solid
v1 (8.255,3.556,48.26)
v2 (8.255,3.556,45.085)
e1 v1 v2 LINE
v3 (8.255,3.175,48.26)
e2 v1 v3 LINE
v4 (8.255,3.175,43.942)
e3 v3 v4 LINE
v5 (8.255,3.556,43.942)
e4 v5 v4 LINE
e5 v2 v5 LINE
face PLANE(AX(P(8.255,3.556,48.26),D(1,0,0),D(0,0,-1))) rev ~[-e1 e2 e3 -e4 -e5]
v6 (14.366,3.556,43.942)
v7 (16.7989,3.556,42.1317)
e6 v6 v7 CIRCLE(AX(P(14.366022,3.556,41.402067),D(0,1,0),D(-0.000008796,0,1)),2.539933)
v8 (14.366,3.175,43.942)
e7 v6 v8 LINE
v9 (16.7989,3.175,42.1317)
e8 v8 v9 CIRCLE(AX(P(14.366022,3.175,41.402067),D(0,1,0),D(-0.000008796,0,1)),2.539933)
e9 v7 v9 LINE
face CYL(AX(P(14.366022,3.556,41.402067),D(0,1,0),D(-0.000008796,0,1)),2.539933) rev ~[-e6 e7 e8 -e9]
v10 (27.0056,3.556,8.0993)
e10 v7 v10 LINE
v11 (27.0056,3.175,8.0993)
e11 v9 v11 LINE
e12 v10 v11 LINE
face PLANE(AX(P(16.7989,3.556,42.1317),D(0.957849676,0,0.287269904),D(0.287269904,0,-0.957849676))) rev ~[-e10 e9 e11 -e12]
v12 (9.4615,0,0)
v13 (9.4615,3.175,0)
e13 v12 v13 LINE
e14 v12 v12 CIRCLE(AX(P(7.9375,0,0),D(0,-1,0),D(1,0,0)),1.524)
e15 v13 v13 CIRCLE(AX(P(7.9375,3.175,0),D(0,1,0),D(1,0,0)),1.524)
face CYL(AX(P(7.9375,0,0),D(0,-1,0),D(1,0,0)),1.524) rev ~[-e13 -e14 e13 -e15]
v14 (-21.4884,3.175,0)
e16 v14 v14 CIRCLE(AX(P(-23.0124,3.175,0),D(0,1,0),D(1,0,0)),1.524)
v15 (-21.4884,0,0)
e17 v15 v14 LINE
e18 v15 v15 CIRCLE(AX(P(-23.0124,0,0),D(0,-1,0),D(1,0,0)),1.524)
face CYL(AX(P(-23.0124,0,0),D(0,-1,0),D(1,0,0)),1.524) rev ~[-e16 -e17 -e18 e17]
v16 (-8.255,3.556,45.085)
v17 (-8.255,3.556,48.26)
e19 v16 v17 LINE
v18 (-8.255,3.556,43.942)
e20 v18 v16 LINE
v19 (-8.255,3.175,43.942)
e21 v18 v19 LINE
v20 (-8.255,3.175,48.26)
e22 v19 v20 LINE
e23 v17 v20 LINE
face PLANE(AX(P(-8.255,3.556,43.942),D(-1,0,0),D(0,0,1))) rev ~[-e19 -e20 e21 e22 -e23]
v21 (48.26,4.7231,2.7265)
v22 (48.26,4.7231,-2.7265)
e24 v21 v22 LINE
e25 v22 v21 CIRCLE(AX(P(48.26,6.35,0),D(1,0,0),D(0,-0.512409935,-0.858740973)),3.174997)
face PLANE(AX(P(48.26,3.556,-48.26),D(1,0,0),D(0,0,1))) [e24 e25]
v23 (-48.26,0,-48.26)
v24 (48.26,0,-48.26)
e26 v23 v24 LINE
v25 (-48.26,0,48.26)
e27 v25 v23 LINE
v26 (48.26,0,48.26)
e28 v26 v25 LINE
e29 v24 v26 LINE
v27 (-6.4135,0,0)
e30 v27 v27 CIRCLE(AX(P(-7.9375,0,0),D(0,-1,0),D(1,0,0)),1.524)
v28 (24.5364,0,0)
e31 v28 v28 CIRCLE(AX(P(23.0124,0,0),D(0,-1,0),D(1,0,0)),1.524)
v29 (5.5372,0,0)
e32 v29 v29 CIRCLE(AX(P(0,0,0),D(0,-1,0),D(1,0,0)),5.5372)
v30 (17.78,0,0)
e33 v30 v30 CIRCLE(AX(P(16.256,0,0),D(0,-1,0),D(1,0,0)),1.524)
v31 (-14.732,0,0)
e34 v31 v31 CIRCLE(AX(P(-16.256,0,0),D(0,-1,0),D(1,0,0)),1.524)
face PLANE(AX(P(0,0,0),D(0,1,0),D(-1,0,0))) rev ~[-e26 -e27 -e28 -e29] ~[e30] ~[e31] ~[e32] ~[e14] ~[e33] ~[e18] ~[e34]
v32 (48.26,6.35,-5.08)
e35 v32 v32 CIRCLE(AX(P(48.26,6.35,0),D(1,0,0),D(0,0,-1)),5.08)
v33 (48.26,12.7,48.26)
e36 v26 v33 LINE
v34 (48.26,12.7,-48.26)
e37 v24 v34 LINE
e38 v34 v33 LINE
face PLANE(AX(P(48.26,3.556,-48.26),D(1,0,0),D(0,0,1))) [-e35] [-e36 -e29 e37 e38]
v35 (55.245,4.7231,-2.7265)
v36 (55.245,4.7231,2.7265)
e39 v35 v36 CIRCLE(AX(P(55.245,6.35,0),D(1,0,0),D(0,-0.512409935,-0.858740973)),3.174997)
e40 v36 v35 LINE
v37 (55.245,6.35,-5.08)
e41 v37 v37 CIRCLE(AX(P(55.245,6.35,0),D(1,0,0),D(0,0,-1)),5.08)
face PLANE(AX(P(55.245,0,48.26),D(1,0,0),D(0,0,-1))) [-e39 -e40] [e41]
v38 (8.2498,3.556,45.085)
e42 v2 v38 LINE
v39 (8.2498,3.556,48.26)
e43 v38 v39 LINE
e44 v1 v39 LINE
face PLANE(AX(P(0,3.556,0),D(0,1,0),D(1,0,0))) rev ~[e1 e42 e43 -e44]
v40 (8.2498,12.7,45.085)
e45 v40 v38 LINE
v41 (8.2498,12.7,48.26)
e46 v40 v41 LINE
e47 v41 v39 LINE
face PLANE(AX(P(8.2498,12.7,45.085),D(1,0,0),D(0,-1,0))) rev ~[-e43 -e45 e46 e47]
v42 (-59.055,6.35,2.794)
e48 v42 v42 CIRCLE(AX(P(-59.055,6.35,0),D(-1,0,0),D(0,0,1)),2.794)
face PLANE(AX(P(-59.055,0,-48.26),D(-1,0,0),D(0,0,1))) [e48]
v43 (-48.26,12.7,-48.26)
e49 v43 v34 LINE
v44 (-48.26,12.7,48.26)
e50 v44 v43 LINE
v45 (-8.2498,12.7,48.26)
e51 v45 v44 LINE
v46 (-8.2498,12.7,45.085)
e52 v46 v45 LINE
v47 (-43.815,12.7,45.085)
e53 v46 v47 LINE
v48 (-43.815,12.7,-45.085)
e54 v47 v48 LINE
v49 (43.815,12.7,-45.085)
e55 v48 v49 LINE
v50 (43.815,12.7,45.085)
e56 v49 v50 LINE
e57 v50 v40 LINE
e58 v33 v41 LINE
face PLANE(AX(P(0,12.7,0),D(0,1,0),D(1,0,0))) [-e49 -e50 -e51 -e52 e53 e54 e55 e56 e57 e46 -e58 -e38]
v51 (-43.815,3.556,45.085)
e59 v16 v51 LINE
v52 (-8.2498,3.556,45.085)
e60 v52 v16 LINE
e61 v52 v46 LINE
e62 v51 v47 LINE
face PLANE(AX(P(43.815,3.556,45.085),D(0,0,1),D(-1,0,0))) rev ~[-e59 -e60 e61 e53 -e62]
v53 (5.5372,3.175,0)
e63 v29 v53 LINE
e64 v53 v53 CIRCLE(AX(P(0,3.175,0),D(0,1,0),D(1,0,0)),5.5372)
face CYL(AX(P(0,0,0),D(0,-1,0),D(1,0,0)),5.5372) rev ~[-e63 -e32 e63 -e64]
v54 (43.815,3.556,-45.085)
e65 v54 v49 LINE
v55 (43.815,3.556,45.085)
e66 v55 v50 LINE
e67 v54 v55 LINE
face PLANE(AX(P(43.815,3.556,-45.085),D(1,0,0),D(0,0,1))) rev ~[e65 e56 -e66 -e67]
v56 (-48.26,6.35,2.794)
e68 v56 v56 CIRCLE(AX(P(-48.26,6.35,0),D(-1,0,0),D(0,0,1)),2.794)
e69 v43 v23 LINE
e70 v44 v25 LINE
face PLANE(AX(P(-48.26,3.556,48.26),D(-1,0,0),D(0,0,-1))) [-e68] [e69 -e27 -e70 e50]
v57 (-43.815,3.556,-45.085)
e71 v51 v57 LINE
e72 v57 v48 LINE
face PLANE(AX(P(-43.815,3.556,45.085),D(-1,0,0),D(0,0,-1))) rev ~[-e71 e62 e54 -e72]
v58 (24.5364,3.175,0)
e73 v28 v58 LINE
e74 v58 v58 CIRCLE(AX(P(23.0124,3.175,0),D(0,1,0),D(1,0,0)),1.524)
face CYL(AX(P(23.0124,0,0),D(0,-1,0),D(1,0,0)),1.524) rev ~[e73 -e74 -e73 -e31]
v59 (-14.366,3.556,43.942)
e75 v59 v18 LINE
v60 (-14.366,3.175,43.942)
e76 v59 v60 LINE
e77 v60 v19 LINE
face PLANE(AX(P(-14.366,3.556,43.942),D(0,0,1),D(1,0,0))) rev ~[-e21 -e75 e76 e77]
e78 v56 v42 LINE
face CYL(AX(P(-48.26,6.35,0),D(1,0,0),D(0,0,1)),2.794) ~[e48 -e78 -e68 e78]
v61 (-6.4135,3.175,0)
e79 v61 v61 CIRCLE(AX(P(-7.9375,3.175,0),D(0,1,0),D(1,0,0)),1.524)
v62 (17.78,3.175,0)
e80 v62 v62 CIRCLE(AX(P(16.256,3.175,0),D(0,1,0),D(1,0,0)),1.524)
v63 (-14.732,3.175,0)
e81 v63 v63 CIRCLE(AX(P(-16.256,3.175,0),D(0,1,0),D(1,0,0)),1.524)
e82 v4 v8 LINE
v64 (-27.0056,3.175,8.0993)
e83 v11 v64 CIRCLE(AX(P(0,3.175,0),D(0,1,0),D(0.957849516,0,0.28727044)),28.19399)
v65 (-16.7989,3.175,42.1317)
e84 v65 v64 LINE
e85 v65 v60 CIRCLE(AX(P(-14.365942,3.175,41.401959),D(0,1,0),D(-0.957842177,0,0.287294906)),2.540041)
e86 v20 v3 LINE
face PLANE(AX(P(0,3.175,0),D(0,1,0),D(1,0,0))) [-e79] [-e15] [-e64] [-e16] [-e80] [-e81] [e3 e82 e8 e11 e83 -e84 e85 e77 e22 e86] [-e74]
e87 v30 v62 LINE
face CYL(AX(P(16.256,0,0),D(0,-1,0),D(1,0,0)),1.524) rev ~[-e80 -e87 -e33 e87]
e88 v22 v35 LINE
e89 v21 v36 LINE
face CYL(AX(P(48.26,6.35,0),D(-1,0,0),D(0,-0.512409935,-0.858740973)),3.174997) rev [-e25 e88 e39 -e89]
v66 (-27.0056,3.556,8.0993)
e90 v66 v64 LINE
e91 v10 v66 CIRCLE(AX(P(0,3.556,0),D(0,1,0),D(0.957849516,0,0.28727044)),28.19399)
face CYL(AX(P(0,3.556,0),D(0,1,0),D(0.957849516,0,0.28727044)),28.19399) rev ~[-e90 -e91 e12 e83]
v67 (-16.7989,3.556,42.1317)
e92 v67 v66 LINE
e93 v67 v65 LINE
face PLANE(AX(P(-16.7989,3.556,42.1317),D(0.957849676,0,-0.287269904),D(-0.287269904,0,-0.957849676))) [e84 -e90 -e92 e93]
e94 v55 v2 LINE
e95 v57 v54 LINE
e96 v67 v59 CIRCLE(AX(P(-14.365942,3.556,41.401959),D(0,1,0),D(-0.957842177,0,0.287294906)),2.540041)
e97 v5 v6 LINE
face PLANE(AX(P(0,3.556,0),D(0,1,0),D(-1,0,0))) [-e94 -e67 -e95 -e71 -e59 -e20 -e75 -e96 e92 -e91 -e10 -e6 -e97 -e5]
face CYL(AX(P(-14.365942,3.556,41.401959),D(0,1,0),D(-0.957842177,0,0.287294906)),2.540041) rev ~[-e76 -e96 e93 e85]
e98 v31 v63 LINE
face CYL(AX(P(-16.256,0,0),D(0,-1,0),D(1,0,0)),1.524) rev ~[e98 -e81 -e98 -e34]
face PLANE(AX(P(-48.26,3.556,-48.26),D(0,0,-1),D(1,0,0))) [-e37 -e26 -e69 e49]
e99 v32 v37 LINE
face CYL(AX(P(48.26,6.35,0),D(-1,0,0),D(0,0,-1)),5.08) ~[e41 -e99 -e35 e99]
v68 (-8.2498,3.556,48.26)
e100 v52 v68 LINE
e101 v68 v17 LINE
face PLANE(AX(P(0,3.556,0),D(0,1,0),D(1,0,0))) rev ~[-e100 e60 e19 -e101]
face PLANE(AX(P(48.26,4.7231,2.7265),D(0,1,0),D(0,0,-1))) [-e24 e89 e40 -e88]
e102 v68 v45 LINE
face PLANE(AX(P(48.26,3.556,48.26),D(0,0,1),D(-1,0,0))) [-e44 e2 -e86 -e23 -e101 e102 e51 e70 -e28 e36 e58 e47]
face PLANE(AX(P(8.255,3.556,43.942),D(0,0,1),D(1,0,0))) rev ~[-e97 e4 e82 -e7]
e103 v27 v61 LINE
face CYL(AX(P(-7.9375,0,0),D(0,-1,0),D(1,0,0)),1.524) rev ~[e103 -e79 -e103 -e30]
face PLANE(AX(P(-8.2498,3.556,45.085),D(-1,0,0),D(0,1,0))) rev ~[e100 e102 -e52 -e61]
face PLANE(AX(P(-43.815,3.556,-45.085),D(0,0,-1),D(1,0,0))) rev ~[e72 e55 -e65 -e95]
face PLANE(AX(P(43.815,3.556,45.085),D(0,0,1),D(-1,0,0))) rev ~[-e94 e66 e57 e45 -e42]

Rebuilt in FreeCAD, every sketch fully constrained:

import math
import FreeCAD as App
import Part
import Sketcher
from FreeCAD import Vector
Q = App.Units.Quantity


def add_polygon(sketch, points):
    """Adds a closed chain of lines whose ends are joined by coincident constraints."""
    first, n = sketch.GeometryCount, len(points)
    for a, b in zip(points, points[1:] + points[:1]):
        sketch.addGeometry(Part.LineSegment(App.Vector(*a, 0), App.Vector(*b, 0)), False)
    for i in range(n):
        sketch.addConstraint(Sketcher.Constraint("Coincident", first + i, 2, first + (i + 1) % n, 1))

doc = App.newDocument("Part")
params = doc.addObject("Spreadsheet::Sheet", "Params")
for row, (alias, value) in enumerate([
    ("sketch1_width", "3.8 in"),
    ("pad1_length", "0.14 in"),
    ("sketch2_radius", "0.1 in"),
    ("sketch2_diameter", "0.12 in"),
    ("sketch2_radius2", "1.11 in"),
    ("sketch2_diameter2", "0.436 in"),
    ("sketch2_width", "0.65 in"),
    ("pocket1_length", "0.015 in"),
    ("sketch3_diameter", "0.12 in"),
    ("sketch3_diameter2", "0.436 in"),
    ("pocket2_length", "0.14 in"),
    ("sketch4_width", "3.45 in"),
    ("sketch4_height", "3.55 in"),
    ("sketch4_width2", "3.8 in"),
    ("pad2_length", "0.36 in"),
    ("sketch5_height", "0.36 in"),
    ("sketch6_diameter", "0.22 in"),
    ("pad3_length", "0.425 in"),
    ("sketch7_diameter", "0.4 in"),
    ("sketch7_radius", "0.125 in"),
    ("pad4_length", "0.275 in"),
], start=1):
    params.set(f"A{row}", alias)
    params.set(f"B{row}", "=" + value)
    params.setAlias(f"B{row}", alias)

body = doc.addObject("PartDesign::Body", "Body")

sketch1 = doc.addObject("Sketcher::SketchObject", "Sketch")
body.addObject(sketch1)
sketch1.AttachmentSupport = (doc.XZ_Plane, [""])
sketch1.MapMode = "FlatFace"
add_polygon(sketch1, [(-48.26, 48.26), (48.26, 48.26), (48.26, -48.26), (-48.26, -48.26)])
sketch1.addConstraint(Sketcher.Constraint("Horizontal", 0))
sketch1.addConstraint(Sketcher.Constraint("Vertical", 1))
sketch1.addConstraint(Sketcher.Constraint("Horizontal", 2))
sketch1.addConstraint(Sketcher.Constraint("Vertical", 3))
sketch1.addConstraint(Sketcher.Constraint("Symmetric", 0, 2, 2, 2, -1, 1))
sketch1.addConstraint(Sketcher.Constraint("Equal", 2, 1))
sketch1.addConstraint(Sketcher.Constraint("DistanceX", 0, 1, 0, 2, Q("3.8 in")))
sketch1.setExpression("Constraints[10]", "Params.sketch1_width")
pad1 = doc.addObject("PartDesign::Pad", "Pad")
body.addObject(pad1)
pad1.Profile = sketch1
pad1.setExpression("Length", "Params.pad1_length")
pad1.Reversed = True

sketch2 = doc.addObject("Sketcher::SketchObject", "Sketch001")
body.addObject(sketch2)
sketch2.AttachmentSupport = (doc.XZ_Plane, [""])
sketch2.MapMode = "FlatFace"
sketch2.AttachmentOffset = App.Placement(Vector(0, 0, -0.14 * 25.4), App.Rotation())
sketch2.addGeometry(Part.LineSegment(Vector(16.7989, 42.1317, 0), Vector(27.0056, 8.0993, 0)), False)
sketch2.addGeometry(Part.ArcOfCircle(Part.Circle(Vector(0, 0, 0), Vector(0, 0, 1), 28.19399), math.radians(163.305388), math.radians(376.694612)), False)
sketch2.addGeometry(Part.LineSegment(Vector(-27.0056, 8.0993, 0), Vector(-16.7989, 42.1317, 0)), False)
sketch2.addGeometry(Part.ArcOfCircle(Part.Circle(Vector(-14.366, 41.402, 0), Vector(0, 0, 1), 2.539973), math.radians(90), math.radians(163.304429)), False)
sketch2.addGeometry(Part.LineSegment(Vector(-14.366, 43.942, 0), Vector(-8.255, 43.942, 0)), False)
sketch2.addGeometry(Part.LineSegment(Vector(-8.255, 43.942, 0), Vector(-8.255, 48.26, 0)), False)
sketch2.addGeometry(Part.LineSegment(Vector(-8.255, 48.26, 0), Vector(8.255, 48.26, 0)), False)
sketch2.addGeometry(Part.LineSegment(Vector(8.255, 48.26, 0), Vector(8.255, 43.942, 0)), False)
sketch2.addGeometry(Part.LineSegment(Vector(8.255, 43.942, 0), Vector(14.366, 43.942, 0)), False)
sketch2.addGeometry(Part.ArcOfCircle(Part.Circle(Vector(14.366, 41.402, 0), Vector(0, 0, 1), 2.54), math.radians(16.695571), math.radians(90)), False)
sketch2.addGeometry(Part.Circle(Vector(-23.0124, 0, 0), Vector(0, 0, 1), 1.524), False)
sketch2.addGeometry(Part.Circle(Vector(-16.256, 0, 0), Vector(0, 0, 1), 1.524), False)
sketch2.addGeometry(Part.Circle(Vector(-7.9375, 0, 0), Vector(0, 0, 1), 1.524), False)
sketch2.addGeometry(Part.Circle(Vector(0, 0, 0), Vector(0, 0, 1), 5.5372), False)
sketch2.addGeometry(Part.Circle(Vector(7.9375, 0, 0), Vector(0, 0, 1), 1.524), False)
sketch2.addGeometry(Part.Circle(Vector(16.256, 0, 0), Vector(0, 0, 1), 1.524), False)
sketch2.addGeometry(Part.Circle(Vector(23.0124, 0, 0), Vector(0, 0, 1), 1.524), False)
sketch2.addConstraint(Sketcher.Constraint("Tangent", 0, 2, 1, 2))
sketch2.addConstraint(Sketcher.Constraint("Tangent", 1, 1, 2, 1))
sketch2.addConstraint(Sketcher.Constraint("Tangent", 2, 2, 3, 2))
sketch2.addConstraint(Sketcher.Constraint("Tangent", 3, 1, 4, 1))
sketch2.addConstraint(Sketcher.Constraint("Coincident", 4, 2, 5, 1))
sketch2.addConstraint(Sketcher.Constraint("Coincident", 5, 2, 6, 1))
sketch2.addConstraint(Sketcher.Constraint("Coincident", 6, 2, 7, 1))
sketch2.addConstraint(Sketcher.Constraint("Coincident", 7, 2, 8, 1))
sketch2.addConstraint(Sketcher.Constraint("Tangent", 8, 2, 9, 2))
sketch2.addConstraint(Sketcher.Constraint("Tangent", 9, 1, 0, 1))
sketch2.addConstraint(Sketcher.Constraint("Horizontal", 4))
sketch2.addConstraint(Sketcher.Constraint("Vertical", 5))
sketch2.addConstraint(Sketcher.Constraint("Horizontal", 6))
sketch2.addConstraint(Sketcher.Constraint("Vertical", 7))
sketch2.addConstraint(Sketcher.Constraint("Horizontal", 8))
sketch2.addConstraint(Sketcher.Constraint("Coincident", 1, 3, -1, 1))
sketch2.addConstraint(Sketcher.Constraint("Coincident", 13, 3, -1, 1))
sketch2.addConstraint(Sketcher.Constraint("Equal", 3, 9))
sketch2.addConstraint(Sketcher.Constraint("Equal", 10, 11))
sketch2.addConstraint(Sketcher.Constraint("Equal", 11, 12))
sketch2.addConstraint(Sketcher.Constraint("Equal", 12, 14))
sketch2.addConstraint(Sketcher.Constraint("Equal", 14, 15))
sketch2.addConstraint(Sketcher.Constraint("Equal", 15, 16))
sketch2.addConstraint(Sketcher.Constraint("Symmetric", 12, 3, 14, 3, -1, 1))
sketch2.addConstraint(Sketcher.Constraint("Symmetric", 11, 3, 15, 3, -1, 1))
sketch2.addConstraint(Sketcher.Constraint("Symmetric", 10, 3, 16, 3, -1, 1))
sketch2.addConstraint(Sketcher.Constraint("Symmetric", 3, 3, 9, 3, -2))
sketch2.addConstraint(Sketcher.Constraint("PointOnObject", 10, 3, -1))
sketch2.addConstraint(Sketcher.Constraint("PointOnObject", 11, 3, -1))
sketch2.addConstraint(Sketcher.Constraint("PointOnObject", 12, 3, -1))
sketch2.addConstraint(Sketcher.Constraint("Equal", 4, 8))
sketch2.addConstraint(Sketcher.Constraint("Radius", 3, Q("0.1 in")))
sketch2.addConstraint(Sketcher.Constraint("Diameter", 10, Q("0.12 in")))
sketch2.addConstraint(Sketcher.Constraint("Radius", 1, Q("1.11 in")))
sketch2.addConstraint(Sketcher.Constraint("Diameter", 13, Q("0.436 in")))
sketch2.addConstraint(Sketcher.Constraint("DistanceX", 6, 1, 6, 2, Q("0.65 in")))
sketch2.addConstraint(Sketcher.Constraint("DistanceX", 11, 3, -1, 1, Q("0.64 in")))
sketch2.addConstraint(Sketcher.Constraint("DistanceY", -1, 1, 3, 1, Q("1.73 in")))
sketch2.addConstraint(Sketcher.Constraint("DistanceX", 10, 3, -1, 1, Q("0.906 in")))
sketch2.addConstraint(Sketcher.Constraint("DistanceX", 12, 3, -1, 1, Q("0.3125 in")))
sketch2.addConstraint(Sketcher.Constraint("DistanceY", 5, 1, 5, 2, Q("0.17 in")))
sketch2.addConstraint(Sketcher.Constraint("DistanceX", 4, 1, 4, 2, Q("0.2406 in")))
sketch2.setExpression("Constraints[31]", "Params.sketch2_radius")
sketch2.setExpression("Constraints[32]", "Params.sketch2_diameter")
sketch2.setExpression("Constraints[33]", "Params.sketch2_radius2")
sketch2.setExpression("Constraints[34]", "Params.sketch2_diameter2")
sketch2.setExpression("Constraints[35]", "Params.sketch2_width")
pocket1 = doc.addObject("PartDesign::Pocket", "Pocket")
body.addObject(pocket1)
pocket1.Profile = sketch2
pocket1.setExpression("Length", "Params.pocket1_length")
pocket1.Reversed = True

sketch3 = doc.addObject("Sketcher::SketchObject", "Sketch002")
body.addObject(sketch3)
sketch3.AttachmentSupport = (doc.XZ_Plane, [""])
sketch3.MapMode = "FlatFace"
sketch3.addGeometry(Part.Circle(Vector(0, 0, 0), Vector(0, 0, 1), 5.5372), False)
sketch3.addGeometry(Part.Circle(Vector(7.9375, 0, 0), Vector(0, 0, 1), 1.524), False)
sketch3.addGeometry(Part.Circle(Vector(-7.9375, 0, 0), Vector(0, 0, 1), 1.524), False)
sketch3.addGeometry(Part.Circle(Vector(16.256, 0, 0), Vector(0, 0, 1), 1.524), False)
sketch3.addGeometry(Part.Circle(Vector(-16.256, 0, 0), Vector(0, 0, 1), 1.524), False)
sketch3.addGeometry(Part.Circle(Vector(23.0124, 0, 0), Vector(0, 0, 1), 1.524), False)
sketch3.addGeometry(Part.Circle(Vector(-23.0124, 0, 0), Vector(0, 0, 1), 1.524), False)
sketch3.addConstraint(Sketcher.Constraint("Coincident", 0, 3, -1, 1))
sketch3.addConstraint(Sketcher.Constraint("Equal", 1, 2))
sketch3.addConstraint(Sketcher.Constraint("Equal", 2, 3))
sketch3.addConstraint(Sketcher.Constraint("Equal", 3, 4))
sketch3.addConstraint(Sketcher.Constraint("Equal", 4, 5))
sketch3.addConstraint(Sketcher.Constraint("Equal", 5, 6))
sketch3.addConstraint(Sketcher.Constraint("Symmetric", 1, 3, 2, 3, -1, 1))
sketch3.addConstraint(Sketcher.Constraint("Symmetric", 3, 3, 4, 3, -1, 1))
sketch3.addConstraint(Sketcher.Constraint("Symmetric", 5, 3, 6, 3, -1, 1))
sketch3.addConstraint(Sketcher.Constraint("PointOnObject", 1, 3, -1))
sketch3.addConstraint(Sketcher.Constraint("PointOnObject", 3, 3, -1))
sketch3.addConstraint(Sketcher.Constraint("PointOnObject", 5, 3, -1))
sketch3.addConstraint(Sketcher.Constraint("Diameter", 1, Q("0.12 in")))
sketch3.addConstraint(Sketcher.Constraint("Diameter", 0, Q("0.436 in")))
sketch3.addConstraint(Sketcher.Constraint("DistanceX", -1, 1, 3, 3, Q("0.64 in")))
sketch3.addConstraint(Sketcher.Constraint("DistanceX", -1, 1, 1, 3, Q("0.3125 in")))
sketch3.addConstraint(Sketcher.Constraint("DistanceX", -1, 1, 5, 3, Q("0.906 in")))
sketch3.setExpression("Constraints[12]", "Params.sketch3_diameter")
sketch3.setExpression("Constraints[13]", "Params.sketch3_diameter2")
pocket2 = doc.addObject("PartDesign::Pocket", "Pocket001")
body.addObject(pocket2)
pocket2.Profile = sketch3
pocket2.setExpression("Length", "Params.pocket2_length")

sketch4 = doc.addObject("Sketcher::SketchObject", "Sketch003")
body.addObject(sketch4)
sketch4.AttachmentSupport = (doc.XZ_Plane, [""])
sketch4.MapMode = "FlatFace"
sketch4.AttachmentOffset = App.Placement(Vector(0, 0, -0.14 * 25.4), App.Rotation())
add_polygon(sketch4, [(-48.26, 48.26), (48.26, 48.26), (48.26, -48.26), (-48.26, -48.26)])
add_polygon(sketch4, [(43.815, -45.085), (43.815, 45.085), (-43.815, 45.085), (-43.815, -45.085)])
sketch4.addConstraint(Sketcher.Constraint("Horizontal", 0))
sketch4.addConstraint(Sketcher.Constraint("Vertical", 1))
sketch4.addConstraint(Sketcher.Constraint("Horizontal", 2))
sketch4.addConstraint(Sketcher.Constraint("Vertical", 3))
sketch4.addConstraint(Sketcher.Constraint("Vertical", 4))
sketch4.addConstraint(Sketcher.Constraint("Horizontal", 5))
sketch4.addConstraint(Sketcher.Constraint("Vertical", 6))
sketch4.addConstraint(Sketcher.Constraint("Horizontal", 7))
sketch4.addConstraint(Sketcher.Constraint("Symmetric", 0, 2, 2, 2, -1, 1))
sketch4.addConstraint(Sketcher.Constraint("Symmetric", 4, 2, 6, 2, -1, 1))
sketch4.addConstraint(Sketcher.Constraint("Equal", 2, 1))
sketch4.addConstraint(Sketcher.Constraint("DistanceX", 5, 2, 5, 1, Q("3.45 in")))
sketch4.addConstraint(Sketcher.Constraint("DistanceY", 4, 1, 4, 2, Q("3.55 in")))
sketch4.addConstraint(Sketcher.Constraint("DistanceX", 0, 1, 0, 2, Q("3.8 in")))
sketch4.setExpression("Constraints[19]", "Params.sketch4_width")
sketch4.setExpression("Constraints[20]", "Params.sketch4_height")
sketch4.setExpression("Constraints[21]", "Params.sketch4_width2")
pad2 = doc.addObject("PartDesign::Pad", "Pad001")
body.addObject(pad2)
pad2.Profile = sketch4
pad2.setExpression("Length", "Params.pad2_length")
pad2.Reversed = True

sketch5 = doc.addObject("Sketcher::SketchObject", "Sketch004")
body.addObject(sketch5)
sketch5.AttachmentSupport = (doc.XY_Plane, [""])
sketch5.MapMode = "FlatFace"
sketch5.AttachmentOffset = App.Placement(Vector(0, 0, 1.775 * 25.4), App.Rotation())
add_polygon(sketch5, [(-8.2498, 12.7), (8.2498, 12.7), (8.2498, 3.556), (-8.2498, 3.556)])
sketch5.addConstraint(Sketcher.Constraint("Horizontal", 0))
sketch5.addConstraint(Sketcher.Constraint("Vertical", 1))
sketch5.addConstraint(Sketcher.Constraint("Horizontal", 2))
sketch5.addConstraint(Sketcher.Constraint("Vertical", 3))
sketch5.addConstraint(Sketcher.Constraint("DistanceY", 1, 2, 1, 1, Q("0.36 in")))
sketch5.addConstraint(Sketcher.Constraint("DistanceY", -1, 1, 0, 2, Q("0.5 in")))
sketch5.addConstraint(Sketcher.Constraint("DistanceX", 0, 1, 0, 2, Q("0.6496 in")))
sketch5.addConstraint(Sketcher.Constraint("DistanceX", -1, 1, 0, 2, Q("0.3248 in")))
sketch5.setExpression("Constraints[8]", "Params.sketch5_height")
pocket3 = doc.addObject("PartDesign::Pocket", "Pocket002")
body.addObject(pocket3)
pocket3.Profile = sketch5
pocket3.Type = "UpToFirst"
pocket3.Reversed = True

sketch6 = doc.addObject("Sketcher::SketchObject", "Sketch005")
body.addObject(sketch6)
sketch6.AttachmentSupport = (doc.YZ_Plane, [""])
sketch6.MapMode = "FlatFace"
sketch6.AttachmentOffset = App.Placement(Vector(0, 0, -1.9 * 25.4), App.Rotation())
sketch6.addGeometry(Part.Circle(Vector(6.35, 0, 0), Vector(0, 0, 1), 2.794), False)
sketch6.addConstraint(Sketcher.Constraint("PointOnObject", 0, 3, -1))
sketch6.addConstraint(Sketcher.Constraint("Diameter", 0, Q("0.22 in")))
sketch6.addConstraint(Sketcher.Constraint("DistanceX", -1, 1, 0, 3, Q("0.25 in")))
sketch6.setExpression("Constraints[1]", "Params.sketch6_diameter")
pad3 = doc.addObject("PartDesign::Pad", "Pad002")
body.addObject(pad3)
pad3.Profile = sketch6
pad3.setExpression("Length", "Params.pad3_length")
pad3.Reversed = True

sketch7 = doc.addObject("Sketcher::SketchObject", "Sketch006")
body.addObject(sketch7)
sketch7.AttachmentSupport = (doc.YZ_Plane, [""])
sketch7.MapMode = "FlatFace"
sketch7.AttachmentOffset = App.Placement(Vector(0, 0, 1.9 * 25.4), App.Rotation())
sketch7.addGeometry(Part.Circle(Vector(6.35, 0, 0), Vector(0, 0, 1), 5.08), False)
sketch7.addGeometry(Part.ArcOfCircle(Part.Circle(Vector(6.35, 0, 0), Vector(0, 0, 1), 3.174997), math.radians(-120.824488), math.radians(120.824488)), False)
sketch7.addGeometry(Part.LineSegment(Vector(4.7231, -2.7265, 0), Vector(4.7231, 2.7265, 0)), False)
sketch7.addConstraint(Sketcher.Constraint("Coincident", 1, 1, 2, 1))
sketch7.addConstraint(Sketcher.Constraint("Coincident", 2, 2, 1, 2))
sketch7.addConstraint(Sketcher.Constraint("Vertical", 2))
sketch7.addConstraint(Sketcher.Constraint("Coincident", 1, 3, 0, 3))
sketch7.addConstraint(Sketcher.Constraint("PointOnObject", 0, 3, -1))
sketch7.addConstraint(Sketcher.Constraint("Diameter", 0, Q("0.4 in")))
sketch7.addConstraint(Sketcher.Constraint("Radius", 1, Q("0.125 in")))
sketch7.addConstraint(Sketcher.Constraint("DistanceX", -1, 1, 0, 3, Q("0.25 in")))
sketch7.addConstraint(Sketcher.Constraint("DistanceX", 1, 1, 0, 3, 1.627))
sketch7.setExpression("Constraints[5]", "Params.sketch7_diameter")
sketch7.setExpression("Constraints[6]", "Params.sketch7_radius")
pad4 = doc.addObject("PartDesign::Pad", "Pad003")
body.addObject(pad4)
pad4.Profile = sketch7
pad4.setExpression("Length", "Params.pad4_length")

doc.recompute()
